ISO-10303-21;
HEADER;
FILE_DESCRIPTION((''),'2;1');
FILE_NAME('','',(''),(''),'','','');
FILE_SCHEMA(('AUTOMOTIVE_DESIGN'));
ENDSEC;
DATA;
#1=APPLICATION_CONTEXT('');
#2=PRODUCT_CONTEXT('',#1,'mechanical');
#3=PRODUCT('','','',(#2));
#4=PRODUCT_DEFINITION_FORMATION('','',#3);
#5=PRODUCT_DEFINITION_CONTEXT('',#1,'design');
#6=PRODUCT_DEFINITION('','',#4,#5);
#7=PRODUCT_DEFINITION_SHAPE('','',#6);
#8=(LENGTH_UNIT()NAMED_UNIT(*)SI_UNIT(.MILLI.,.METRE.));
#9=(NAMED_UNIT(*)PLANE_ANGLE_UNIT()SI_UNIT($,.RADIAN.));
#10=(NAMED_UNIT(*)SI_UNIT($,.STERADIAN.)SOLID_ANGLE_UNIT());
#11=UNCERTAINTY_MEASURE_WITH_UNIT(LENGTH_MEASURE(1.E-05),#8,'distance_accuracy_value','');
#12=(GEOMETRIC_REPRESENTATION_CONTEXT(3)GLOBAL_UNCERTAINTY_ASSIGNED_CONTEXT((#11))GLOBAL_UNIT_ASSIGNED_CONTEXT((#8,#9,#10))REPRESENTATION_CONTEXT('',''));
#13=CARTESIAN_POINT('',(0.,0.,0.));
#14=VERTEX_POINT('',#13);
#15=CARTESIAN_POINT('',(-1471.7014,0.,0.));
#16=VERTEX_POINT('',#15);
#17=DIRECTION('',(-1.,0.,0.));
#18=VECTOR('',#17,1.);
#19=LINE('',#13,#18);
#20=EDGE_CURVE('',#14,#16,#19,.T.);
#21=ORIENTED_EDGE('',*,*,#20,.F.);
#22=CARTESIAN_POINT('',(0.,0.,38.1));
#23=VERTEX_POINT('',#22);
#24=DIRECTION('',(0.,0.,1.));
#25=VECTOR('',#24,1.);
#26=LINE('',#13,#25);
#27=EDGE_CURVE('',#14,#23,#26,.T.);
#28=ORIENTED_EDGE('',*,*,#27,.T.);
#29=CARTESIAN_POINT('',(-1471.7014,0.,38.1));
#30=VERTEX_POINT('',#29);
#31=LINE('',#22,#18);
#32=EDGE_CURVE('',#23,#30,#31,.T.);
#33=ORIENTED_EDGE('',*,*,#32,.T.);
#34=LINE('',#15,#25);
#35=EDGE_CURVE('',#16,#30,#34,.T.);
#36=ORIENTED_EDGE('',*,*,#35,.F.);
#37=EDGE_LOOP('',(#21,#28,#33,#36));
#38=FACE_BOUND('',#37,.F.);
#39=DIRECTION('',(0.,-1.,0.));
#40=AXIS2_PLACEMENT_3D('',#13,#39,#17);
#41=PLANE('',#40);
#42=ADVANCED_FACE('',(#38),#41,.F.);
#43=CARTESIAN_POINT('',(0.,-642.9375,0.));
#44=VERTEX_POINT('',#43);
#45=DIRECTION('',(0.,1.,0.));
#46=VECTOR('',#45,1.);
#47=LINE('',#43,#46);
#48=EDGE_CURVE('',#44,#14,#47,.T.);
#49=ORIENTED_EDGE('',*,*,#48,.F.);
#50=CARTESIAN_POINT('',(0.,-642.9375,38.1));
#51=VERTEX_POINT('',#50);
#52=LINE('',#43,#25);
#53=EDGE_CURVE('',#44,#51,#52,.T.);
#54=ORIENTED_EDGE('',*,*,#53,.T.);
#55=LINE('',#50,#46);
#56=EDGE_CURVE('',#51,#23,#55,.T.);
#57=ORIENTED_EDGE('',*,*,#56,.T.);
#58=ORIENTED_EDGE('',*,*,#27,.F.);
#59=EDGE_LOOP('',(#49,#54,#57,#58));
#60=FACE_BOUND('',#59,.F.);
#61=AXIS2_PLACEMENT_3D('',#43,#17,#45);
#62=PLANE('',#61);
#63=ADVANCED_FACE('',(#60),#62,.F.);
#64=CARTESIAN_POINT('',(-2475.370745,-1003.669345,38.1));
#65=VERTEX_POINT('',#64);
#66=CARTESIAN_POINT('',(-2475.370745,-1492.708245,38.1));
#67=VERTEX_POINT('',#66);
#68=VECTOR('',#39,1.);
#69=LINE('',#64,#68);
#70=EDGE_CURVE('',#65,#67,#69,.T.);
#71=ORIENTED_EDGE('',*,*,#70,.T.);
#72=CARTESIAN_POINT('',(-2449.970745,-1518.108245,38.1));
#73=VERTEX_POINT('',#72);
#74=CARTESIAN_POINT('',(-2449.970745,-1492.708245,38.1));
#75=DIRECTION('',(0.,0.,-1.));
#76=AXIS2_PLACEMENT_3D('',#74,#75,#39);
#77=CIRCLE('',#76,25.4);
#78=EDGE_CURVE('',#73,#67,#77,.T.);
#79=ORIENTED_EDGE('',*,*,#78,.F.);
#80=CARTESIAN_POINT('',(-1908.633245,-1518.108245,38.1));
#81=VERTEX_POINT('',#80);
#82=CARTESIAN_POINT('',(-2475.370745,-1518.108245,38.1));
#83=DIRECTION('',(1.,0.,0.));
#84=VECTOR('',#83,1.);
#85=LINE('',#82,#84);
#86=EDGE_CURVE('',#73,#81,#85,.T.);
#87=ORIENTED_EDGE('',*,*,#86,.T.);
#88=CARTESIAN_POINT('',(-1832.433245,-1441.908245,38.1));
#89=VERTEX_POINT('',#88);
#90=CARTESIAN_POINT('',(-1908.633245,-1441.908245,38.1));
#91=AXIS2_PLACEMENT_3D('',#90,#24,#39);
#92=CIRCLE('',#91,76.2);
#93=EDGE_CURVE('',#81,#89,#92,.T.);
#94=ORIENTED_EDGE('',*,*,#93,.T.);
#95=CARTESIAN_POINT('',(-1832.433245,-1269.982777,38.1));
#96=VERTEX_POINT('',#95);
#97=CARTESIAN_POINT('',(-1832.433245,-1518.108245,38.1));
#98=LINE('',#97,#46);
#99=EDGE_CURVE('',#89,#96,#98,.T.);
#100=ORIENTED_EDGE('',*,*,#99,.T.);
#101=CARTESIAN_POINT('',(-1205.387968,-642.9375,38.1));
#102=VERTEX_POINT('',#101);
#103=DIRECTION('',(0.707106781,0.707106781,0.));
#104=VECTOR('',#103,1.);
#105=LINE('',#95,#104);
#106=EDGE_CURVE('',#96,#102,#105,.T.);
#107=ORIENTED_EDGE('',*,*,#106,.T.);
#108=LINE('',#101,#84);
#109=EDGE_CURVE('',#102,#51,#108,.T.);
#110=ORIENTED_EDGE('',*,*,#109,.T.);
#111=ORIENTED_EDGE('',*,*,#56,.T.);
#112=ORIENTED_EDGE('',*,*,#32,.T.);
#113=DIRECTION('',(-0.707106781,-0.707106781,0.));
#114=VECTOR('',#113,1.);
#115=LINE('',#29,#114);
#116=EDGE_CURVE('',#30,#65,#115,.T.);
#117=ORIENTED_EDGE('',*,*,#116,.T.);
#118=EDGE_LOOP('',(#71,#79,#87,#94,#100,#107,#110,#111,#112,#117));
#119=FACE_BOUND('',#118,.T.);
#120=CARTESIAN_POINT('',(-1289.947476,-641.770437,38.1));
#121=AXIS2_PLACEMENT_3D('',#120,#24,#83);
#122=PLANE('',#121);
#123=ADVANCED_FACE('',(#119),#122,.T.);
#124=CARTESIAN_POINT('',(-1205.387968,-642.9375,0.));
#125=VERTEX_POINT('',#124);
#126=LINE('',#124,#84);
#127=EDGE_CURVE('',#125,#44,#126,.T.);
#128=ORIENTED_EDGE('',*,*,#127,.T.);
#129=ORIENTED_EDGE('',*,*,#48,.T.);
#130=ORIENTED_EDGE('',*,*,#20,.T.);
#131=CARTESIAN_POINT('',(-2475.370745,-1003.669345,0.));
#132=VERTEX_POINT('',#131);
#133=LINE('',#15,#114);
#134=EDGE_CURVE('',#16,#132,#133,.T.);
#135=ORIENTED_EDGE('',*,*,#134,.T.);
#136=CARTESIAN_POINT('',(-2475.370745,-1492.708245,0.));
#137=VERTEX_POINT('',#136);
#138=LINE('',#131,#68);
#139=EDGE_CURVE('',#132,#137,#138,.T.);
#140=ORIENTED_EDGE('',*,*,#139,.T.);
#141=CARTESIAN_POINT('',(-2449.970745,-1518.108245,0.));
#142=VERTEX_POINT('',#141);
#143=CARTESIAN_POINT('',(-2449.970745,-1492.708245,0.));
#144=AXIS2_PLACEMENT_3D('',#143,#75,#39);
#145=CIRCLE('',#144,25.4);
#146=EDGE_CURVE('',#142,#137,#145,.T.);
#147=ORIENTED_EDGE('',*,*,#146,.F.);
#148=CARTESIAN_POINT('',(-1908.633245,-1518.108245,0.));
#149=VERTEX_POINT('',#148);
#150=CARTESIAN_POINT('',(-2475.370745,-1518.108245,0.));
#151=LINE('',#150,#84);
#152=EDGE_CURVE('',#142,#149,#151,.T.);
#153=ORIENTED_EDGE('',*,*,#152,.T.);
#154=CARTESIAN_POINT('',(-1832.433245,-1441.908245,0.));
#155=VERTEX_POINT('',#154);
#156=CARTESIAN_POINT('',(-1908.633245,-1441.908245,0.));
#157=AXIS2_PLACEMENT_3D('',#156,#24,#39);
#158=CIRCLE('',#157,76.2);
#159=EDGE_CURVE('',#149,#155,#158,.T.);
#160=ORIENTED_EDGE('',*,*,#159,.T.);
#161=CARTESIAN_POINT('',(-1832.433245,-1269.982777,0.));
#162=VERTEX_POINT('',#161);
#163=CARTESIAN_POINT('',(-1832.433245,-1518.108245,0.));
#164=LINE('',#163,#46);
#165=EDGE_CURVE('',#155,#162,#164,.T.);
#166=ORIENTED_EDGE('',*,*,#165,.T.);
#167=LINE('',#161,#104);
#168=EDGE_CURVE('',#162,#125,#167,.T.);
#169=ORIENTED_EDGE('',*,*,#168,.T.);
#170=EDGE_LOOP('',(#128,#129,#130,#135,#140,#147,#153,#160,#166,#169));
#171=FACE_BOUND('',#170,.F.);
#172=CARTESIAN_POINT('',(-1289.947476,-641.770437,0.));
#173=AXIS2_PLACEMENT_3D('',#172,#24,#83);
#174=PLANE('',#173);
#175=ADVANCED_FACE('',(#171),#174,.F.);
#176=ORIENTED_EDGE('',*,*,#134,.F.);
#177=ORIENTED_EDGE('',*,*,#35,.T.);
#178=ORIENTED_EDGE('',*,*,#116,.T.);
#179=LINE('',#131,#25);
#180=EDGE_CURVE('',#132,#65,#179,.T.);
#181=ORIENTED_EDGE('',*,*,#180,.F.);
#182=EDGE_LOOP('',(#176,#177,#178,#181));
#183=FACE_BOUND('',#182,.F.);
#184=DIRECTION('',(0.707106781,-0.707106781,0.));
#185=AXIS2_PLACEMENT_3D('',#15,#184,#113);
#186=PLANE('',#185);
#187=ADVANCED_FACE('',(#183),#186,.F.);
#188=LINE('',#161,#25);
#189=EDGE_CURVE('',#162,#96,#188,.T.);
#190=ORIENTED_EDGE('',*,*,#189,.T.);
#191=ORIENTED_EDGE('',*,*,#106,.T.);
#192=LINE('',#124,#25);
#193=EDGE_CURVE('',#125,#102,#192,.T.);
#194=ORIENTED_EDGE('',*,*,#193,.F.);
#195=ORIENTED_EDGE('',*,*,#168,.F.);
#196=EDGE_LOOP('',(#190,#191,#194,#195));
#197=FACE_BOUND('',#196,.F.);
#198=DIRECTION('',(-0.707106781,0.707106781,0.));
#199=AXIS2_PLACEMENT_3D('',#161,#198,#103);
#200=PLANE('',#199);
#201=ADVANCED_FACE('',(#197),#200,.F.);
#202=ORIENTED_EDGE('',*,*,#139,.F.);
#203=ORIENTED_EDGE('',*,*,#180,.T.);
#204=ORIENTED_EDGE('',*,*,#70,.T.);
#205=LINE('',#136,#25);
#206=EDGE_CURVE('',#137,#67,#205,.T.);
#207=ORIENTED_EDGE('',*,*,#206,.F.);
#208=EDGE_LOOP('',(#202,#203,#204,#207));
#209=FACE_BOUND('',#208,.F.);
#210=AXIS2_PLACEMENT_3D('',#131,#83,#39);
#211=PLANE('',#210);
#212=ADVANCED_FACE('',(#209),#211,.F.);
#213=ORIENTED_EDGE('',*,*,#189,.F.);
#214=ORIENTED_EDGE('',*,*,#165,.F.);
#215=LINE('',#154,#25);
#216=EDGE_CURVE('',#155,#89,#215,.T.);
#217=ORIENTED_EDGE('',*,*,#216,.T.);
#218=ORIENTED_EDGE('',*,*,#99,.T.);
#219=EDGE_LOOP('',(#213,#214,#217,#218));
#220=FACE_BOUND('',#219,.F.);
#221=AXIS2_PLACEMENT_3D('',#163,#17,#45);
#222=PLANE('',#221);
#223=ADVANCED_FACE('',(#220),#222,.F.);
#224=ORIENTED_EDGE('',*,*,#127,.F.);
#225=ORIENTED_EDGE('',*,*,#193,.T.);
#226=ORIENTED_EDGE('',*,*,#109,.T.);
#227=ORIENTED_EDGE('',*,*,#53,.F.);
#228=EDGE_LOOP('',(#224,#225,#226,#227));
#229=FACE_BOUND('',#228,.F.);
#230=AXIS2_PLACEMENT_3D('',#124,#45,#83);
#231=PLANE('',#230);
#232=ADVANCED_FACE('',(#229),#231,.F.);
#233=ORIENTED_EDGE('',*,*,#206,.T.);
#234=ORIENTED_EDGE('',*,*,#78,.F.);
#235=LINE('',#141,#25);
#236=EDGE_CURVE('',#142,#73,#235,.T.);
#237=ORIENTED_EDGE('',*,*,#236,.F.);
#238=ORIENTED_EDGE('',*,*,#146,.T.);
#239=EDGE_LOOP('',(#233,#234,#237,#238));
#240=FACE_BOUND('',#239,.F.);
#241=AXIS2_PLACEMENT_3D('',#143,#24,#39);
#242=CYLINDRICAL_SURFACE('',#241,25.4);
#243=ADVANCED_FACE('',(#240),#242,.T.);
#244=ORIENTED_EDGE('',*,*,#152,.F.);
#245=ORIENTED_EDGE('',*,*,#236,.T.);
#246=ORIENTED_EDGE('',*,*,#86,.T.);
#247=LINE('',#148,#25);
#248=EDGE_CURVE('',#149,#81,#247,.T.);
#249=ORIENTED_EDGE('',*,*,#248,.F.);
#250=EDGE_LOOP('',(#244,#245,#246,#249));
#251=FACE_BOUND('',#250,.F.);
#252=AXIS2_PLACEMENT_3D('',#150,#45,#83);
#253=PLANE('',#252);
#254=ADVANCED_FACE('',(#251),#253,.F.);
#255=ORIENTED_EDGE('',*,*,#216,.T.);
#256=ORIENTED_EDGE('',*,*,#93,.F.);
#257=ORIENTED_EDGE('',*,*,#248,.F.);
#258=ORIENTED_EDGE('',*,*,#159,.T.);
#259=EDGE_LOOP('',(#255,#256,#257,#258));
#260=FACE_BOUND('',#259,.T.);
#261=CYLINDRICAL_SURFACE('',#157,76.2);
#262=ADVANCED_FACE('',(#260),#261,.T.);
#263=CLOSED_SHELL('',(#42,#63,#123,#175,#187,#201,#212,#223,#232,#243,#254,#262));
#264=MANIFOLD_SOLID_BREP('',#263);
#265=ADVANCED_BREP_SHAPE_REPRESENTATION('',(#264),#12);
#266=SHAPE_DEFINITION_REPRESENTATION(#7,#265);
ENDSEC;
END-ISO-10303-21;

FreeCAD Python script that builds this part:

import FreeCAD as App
import Part
import Sketcher
from FreeCAD import Vector
Q = App.Units.Quantity


def edges_at(feature, points):
    """Names of the edges that pass closest to the given points."""
    edges = feature.Shape.Edges
    near = lambda p: min(range(len(edges)), key=lambda i: edges[i].distToShape(Part.Vertex(*p))[0])
    return sorted({f"Edge{near(p) + 1}" for p in points})


def add_polygon(sketch, points):
    """Adds a closed chain of lines whose ends are joined by coincident constraints."""
    first, n = sketch.GeometryCount, len(points)
    for a, b in zip(points, points[1:] + points[:1]):
        sketch.addGeometry(Part.LineSegment(App.Vector(*a, 0), App.Vector(*b, 0)), False)
    for i in range(n):
        sketch.addConstraint(Sketcher.Constraint("Coincident", first + i, 2, first + (i + 1) % n, 1))

doc = App.newDocument("Part")
body = doc.addObject("PartDesign::Body", "Body")

# Sketch on XY plane
sketch1 = body.newObject("Sketcher::SketchObject", "Sketch")
sketch1.AttachmentSupport = (doc.getObject("XY_Plane"), [""])
sketch1.MapMode = "FlatFace"
add_polygon(sketch1, [(0, -642.9375), (0, 0), (-1471.7014, 0), (-2475.370745, -1003.669345), (-2475.370745, -1518.108245), (-1832.433245, -1518.108245), (-1832.433245, -1269.982777), (-1205.387968, -642.9375)])  # lines 0-7
sketch1.addConstraint(Sketcher.Constraint("Vertical", 0))
sketch1.addConstraint(Sketcher.Constraint("Horizontal", 1))
sketch1.addConstraint(Sketcher.Constraint("Vertical", 3))
sketch1.addConstraint(Sketcher.Constraint("Horizontal", 4))
sketch1.addConstraint(Sketcher.Constraint("Vertical", 5))
sketch1.addConstraint(Sketcher.Constraint("Horizontal", 7))
sketch1.addConstraint(Sketcher.Constraint("Coincident", 0, 2, -1, 1))
sketch1.addConstraint(Sketcher.Constraint("Parallel", 2, 6))
sketch1.addConstraint(Sketcher.Constraint("Equal", 4, 0))
sketch1.addConstraint(Sketcher.Constraint("Angle", 2, Q("-135 deg")))
sketch1.addConstraint(Sketcher.Constraint("DistanceX", 1, 2, 1, 1, Q("57.941 in")))
sketch1.addConstraint(Sketcher.Constraint("DistanceX", 4, 1, 4, 2, Q("25.3125 in")))
sketch1.addConstraint(Sketcher.Constraint("Distance", 2, Q("55.882 in")))
sketch1.addConstraint(Sketcher.Constraint("DistanceY", 3, 2, 3, 1, Q("20.2535 in")))
sketch1.addConstraint(Sketcher.Constraint("DistanceX", 7, 1, 7, 2, Q("1205.387968 mm")))
pad1 = body.newObject("PartDesign::Pad", "Pad")
pad1.Profile = sketch1
pad1.Length = Q("1.5 in")
doc.recompute()

fillet = body.newObject("PartDesign::Fillet", "Fillet")
fillet.Base = (pad1, edges_at(pad1, [(-1832.433, -1518.108, 19.05)]))
fillet.Radius = Q("3 in")
doc.recompute()

fillet2 = body.newObject("PartDesign::Fillet", "Fillet001")
fillet2.Base = (fillet, edges_at(fillet, [(-2475.371, -1518.108, 19.05)]))
fillet2.Radius = Q("1 in")

doc.recompute()
